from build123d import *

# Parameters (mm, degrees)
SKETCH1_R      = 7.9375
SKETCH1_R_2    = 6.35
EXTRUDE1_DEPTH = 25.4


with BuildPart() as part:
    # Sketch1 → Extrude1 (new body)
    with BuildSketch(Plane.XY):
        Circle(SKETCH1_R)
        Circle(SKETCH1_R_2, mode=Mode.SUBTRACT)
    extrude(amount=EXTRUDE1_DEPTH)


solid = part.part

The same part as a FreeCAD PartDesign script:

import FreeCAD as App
import Part
import Sketcher
from FreeCAD import Vector
Q = App.Units.Quantity

doc = App.newDocument("Part")
params = doc.addObject("Spreadsheet::Sheet", "Params")
for row, (alias, value) in enumerate([
    ("sketch1_diameter", "0.5 in"),
    ("sketch1_diameter2", "0.625 in"),
    ("pad1_length", "1 in"),
], start=1):
    params.set(f"A{row}", alias)
    params.set(f"B{row}", "=" + value)
    params.setAlias(f"B{row}", alias)

body = doc.addObject("PartDesign::Body", "Body")

# Sketch on XY plane
sketch1 = body.newObject("Sketcher::SketchObject", "Sketch")
sketch1.AttachmentSupport = (doc.getObject("XY_Plane"), [""])
sketch1.MapMode = "FlatFace"
sketch1.addGeometry(Part.Circle(Vector(0, 0, 0), Vector(0, 0, 1), 8), False)
sketch1.addGeometry(Part.Circle(Vector(0, 0, 0), Vector(0, 0, 1), 6), False)
sketch1.addConstraint(Sketcher.Constraint("Coincident", 0, 3, -1, 1))
sketch1.addConstraint(Sketcher.Constraint("Coincident", 1, 3, -1, 1))
sketch1.addConstraint(Sketcher.Constraint("Diameter", 1, Q("0.5 in")))
sketch1.addConstraint(Sketcher.Constraint("Diameter", 0, Q("0.625 in")))
sketch1.setExpression("Constraints[2]", "Params.sketch1_diameter")
sketch1.setExpression("Constraints[3]", "Params.sketch1_diameter2")
pad1 = body.newObject("PartDesign::Pad", "Pad")
pad1.Profile = sketch1
pad1.setExpression("Length", "Params.pad1_length")

doc.recompute()
